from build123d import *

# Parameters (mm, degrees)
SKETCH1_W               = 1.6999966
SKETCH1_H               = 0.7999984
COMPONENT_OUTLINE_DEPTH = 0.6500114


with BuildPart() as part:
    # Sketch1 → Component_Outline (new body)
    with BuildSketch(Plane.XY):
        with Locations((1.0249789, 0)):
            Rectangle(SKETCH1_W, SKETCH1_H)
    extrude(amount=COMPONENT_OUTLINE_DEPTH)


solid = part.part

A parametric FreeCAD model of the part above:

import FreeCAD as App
import Part
import Sketcher

V = App.Vector
Q = App.Units.Quantity

doc = App.newDocument("Part")
body = doc.addObject("PartDesign::Body", "Body")

# Sketch on XY plane
sketch1 = body.newObject("Sketcher::SketchObject", "Sketch")
sketch1.AttachmentSupport = (doc.getObject("XY_Plane"), [""])
sketch1.MapMode = "FlatFace"
sketch1.addGeometry(Part.LineSegment(V(0.174981, 0.399999, 0), V(0.174981, -0.399999, 0)), False)
sketch1.addGeometry(Part.LineSegment(V(0.174981, -0.399999, 0), V(1.874977, -0.399999, 0)), False)
sketch1.addGeometry(Part.LineSegment(V(1.874977, -0.399999, 0), V(1.874977, 0.399999, 0)), False)
sketch1.addGeometry(Part.LineSegment(V(1.874977, 0.399999, 0), V(0.174981, 0.399999, 0)), False)
sketch1.addConstraint(Sketcher.Constraint("Coincident", 0, 2, 1, 1))
sketch1.addConstraint(Sketcher.Constraint("Coincident", 1, 2, 2, 1))
sketch1.addConstraint(Sketcher.Constraint("Coincident", 2, 2, 3, 1))
sketch1.addConstraint(Sketcher.Constraint("Coincident", 3, 2, 0, 1))
sketch1.addConstraint(Sketcher.Constraint("Vertical", 0))
sketch1.addConstraint(Sketcher.Constraint("Horizontal", 1))
sketch1.addConstraint(Sketcher.Constraint("Vertical", 2))
sketch1.addConstraint(Sketcher.Constraint("Horizontal", 3))
sketch1.addConstraint(Sketcher.Constraint("DistanceY", 0, 2, 0, 1, Q("0.799998 mm")))
sketch1.addConstraint(Sketcher.Constraint("DistanceY", 0, 2, -1, 1, Q("0.399999 mm")))
sketch1.addConstraint(Sketcher.Constraint("DistanceX", 1, 1, 1, 2, Q("1.699997 mm")))
sketch1.addConstraint(Sketcher.Constraint("DistanceX", -1, 1, 0, 2, Q("0.174981 mm")))
pad1 = body.newObject("PartDesign::Pad", "Pad")
pad1.Profile = sketch1
pad1.Length = 0.650011

doc.recompute()
